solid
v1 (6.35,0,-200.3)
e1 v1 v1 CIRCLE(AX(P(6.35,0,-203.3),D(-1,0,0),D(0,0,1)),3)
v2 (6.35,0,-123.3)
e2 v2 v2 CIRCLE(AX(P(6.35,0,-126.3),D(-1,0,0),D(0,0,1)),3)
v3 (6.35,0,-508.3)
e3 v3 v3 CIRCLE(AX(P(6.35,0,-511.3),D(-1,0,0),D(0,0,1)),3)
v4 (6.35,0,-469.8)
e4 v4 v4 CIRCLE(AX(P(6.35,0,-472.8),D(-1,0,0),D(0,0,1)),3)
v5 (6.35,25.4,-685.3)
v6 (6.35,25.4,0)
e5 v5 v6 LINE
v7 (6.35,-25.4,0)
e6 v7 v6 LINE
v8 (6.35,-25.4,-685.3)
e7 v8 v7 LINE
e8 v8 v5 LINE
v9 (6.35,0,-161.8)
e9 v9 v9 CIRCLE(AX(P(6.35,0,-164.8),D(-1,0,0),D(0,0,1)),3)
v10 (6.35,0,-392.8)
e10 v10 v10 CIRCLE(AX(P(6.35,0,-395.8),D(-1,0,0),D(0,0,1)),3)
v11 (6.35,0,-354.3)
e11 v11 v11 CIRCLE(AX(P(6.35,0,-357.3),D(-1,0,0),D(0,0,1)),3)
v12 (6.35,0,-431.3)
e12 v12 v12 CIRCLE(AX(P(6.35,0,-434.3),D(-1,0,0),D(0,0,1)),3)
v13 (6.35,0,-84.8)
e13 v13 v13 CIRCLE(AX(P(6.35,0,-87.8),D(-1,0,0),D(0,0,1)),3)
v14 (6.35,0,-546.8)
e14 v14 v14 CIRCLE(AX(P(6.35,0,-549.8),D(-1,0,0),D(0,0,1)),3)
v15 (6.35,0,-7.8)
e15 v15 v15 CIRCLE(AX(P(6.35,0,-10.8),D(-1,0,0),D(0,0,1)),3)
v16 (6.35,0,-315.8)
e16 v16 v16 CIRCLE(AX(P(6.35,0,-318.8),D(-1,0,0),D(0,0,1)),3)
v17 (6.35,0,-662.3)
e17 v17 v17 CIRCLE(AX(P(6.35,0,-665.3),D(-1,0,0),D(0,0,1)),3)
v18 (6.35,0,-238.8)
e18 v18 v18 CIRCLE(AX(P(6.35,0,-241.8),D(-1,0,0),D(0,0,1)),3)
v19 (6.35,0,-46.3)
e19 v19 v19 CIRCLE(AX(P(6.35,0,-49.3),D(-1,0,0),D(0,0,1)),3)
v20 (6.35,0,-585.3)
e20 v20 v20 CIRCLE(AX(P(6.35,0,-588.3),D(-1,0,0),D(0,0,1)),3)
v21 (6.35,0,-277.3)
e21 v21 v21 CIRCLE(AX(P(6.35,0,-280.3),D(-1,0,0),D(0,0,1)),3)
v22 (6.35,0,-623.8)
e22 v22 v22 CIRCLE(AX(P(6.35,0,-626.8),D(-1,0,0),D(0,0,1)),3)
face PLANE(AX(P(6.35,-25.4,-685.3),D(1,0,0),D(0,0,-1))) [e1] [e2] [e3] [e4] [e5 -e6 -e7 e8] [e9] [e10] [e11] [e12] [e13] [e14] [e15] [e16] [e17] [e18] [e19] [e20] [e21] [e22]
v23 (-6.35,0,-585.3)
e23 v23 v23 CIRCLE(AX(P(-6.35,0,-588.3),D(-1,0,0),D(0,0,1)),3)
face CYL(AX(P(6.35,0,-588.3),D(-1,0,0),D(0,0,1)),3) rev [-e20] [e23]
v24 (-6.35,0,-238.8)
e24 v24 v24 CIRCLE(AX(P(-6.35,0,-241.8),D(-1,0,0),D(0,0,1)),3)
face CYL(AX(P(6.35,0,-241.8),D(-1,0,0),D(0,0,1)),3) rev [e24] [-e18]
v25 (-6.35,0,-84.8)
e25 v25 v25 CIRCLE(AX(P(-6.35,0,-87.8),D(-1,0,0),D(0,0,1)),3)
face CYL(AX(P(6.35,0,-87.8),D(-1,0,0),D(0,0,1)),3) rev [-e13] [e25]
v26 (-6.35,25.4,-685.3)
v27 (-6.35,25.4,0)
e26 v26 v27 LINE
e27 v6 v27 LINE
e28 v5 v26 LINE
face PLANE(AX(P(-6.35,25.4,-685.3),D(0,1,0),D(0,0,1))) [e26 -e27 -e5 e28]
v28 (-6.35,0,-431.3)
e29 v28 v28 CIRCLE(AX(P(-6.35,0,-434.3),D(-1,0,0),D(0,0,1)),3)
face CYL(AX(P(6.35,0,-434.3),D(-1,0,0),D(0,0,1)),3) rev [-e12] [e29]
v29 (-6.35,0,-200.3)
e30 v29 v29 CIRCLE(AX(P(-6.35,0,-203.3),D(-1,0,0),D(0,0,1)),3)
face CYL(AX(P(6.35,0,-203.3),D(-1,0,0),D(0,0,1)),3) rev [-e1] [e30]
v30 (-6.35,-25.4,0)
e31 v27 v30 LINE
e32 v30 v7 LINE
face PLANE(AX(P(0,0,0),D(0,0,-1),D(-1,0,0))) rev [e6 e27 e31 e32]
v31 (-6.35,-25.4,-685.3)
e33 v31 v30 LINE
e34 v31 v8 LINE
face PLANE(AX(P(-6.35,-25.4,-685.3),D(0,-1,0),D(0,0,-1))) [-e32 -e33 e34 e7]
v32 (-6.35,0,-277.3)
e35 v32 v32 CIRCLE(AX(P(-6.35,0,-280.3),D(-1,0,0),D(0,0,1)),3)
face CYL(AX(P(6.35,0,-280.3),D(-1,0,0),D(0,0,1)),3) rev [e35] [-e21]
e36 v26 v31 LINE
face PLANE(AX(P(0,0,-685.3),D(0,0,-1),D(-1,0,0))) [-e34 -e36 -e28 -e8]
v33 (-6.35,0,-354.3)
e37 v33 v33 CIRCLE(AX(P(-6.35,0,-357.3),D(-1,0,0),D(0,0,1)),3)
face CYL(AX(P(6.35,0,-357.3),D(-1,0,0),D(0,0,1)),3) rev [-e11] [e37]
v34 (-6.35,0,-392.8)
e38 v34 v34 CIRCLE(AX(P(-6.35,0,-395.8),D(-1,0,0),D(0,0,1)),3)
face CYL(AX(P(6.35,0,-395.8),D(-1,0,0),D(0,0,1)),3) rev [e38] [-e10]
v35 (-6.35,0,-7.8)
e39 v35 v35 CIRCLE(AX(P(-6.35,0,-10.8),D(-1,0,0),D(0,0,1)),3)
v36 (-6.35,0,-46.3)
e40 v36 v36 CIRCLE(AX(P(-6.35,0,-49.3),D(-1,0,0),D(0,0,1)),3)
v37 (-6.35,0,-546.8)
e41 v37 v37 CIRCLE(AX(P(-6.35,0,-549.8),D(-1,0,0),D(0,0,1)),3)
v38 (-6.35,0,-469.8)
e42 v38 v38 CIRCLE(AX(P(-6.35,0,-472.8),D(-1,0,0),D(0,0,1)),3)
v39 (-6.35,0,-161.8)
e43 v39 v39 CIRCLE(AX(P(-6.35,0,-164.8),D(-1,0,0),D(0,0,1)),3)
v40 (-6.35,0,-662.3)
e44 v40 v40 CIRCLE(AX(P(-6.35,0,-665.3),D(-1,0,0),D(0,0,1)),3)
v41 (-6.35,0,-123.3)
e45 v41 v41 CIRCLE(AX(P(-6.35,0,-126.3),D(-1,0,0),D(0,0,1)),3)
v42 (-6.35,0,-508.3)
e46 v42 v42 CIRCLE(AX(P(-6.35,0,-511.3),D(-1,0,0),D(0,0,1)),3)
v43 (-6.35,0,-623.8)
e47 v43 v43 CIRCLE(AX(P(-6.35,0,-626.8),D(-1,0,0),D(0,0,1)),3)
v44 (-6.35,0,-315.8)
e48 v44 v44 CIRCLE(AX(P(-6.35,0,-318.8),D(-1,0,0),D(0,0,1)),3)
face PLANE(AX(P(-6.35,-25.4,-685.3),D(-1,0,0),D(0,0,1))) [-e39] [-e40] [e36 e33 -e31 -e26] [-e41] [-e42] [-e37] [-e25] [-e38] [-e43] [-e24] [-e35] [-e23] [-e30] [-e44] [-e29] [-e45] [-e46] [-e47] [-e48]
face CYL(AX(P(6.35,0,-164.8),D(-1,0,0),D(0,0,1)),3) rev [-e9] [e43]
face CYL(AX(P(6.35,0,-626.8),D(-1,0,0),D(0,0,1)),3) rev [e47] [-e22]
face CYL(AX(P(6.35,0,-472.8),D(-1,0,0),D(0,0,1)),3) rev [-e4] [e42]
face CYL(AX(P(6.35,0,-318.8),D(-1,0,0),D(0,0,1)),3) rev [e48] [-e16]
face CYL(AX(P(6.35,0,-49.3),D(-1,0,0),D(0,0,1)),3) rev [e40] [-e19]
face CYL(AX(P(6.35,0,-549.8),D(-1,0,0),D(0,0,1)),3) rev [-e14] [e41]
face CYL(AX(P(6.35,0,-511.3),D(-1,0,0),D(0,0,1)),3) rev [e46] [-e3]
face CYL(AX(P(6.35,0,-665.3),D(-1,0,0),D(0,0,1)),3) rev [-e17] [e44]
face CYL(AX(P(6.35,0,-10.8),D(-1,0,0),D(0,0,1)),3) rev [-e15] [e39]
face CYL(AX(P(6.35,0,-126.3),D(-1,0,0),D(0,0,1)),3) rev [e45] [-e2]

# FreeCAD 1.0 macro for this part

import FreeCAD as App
import Part
import Sketcher
from FreeCAD import Vector

doc = App.newDocument("Part")
body = doc.addObject("PartDesign::Body", "Body")

sketch1 = doc.addObject("Sketcher::SketchObject", "Sketch")
body.addObject(sketch1)
sketch1.AttachmentSupport = (doc.XY_Plane, [""])
sketch1.MapMode = "FlatFace"
sketch1.addGeometry([
    Part.LineSegment(Vector(-6, 25, 0), Vector(-6, -25, 0)),
    Part.LineSegment(Vector(-6, -25, 0), Vector(6, -25, 0)),
    Part.LineSegment(Vector(6, -25, 0), Vector(6, 25, 0)),
    Part.LineSegment(Vector(6, 25, 0), Vector(-6, 25, 0)),
], False)
sketch1.addConstraint([
    Sketcher.Constraint("Coincident", 0, 2, 1, 1),
    Sketcher.Constraint("Coincident", 1, 2, 2, 1),
    Sketcher.Constraint("Coincident", 2, 2, 3, 1),
    Sketcher.Constraint("Coincident", 3, 2, 0, 1),
    Sketcher.Constraint("Vertical", 0),
    Sketcher.Constraint("Horizontal", 1),
    Sketcher.Constraint("Vertical", 2),
    Sketcher.Constraint("Horizontal", 3),
    Sketcher.Constraint("Symmetric", 0, 2, 2, 2, -1, 1),
    Sketcher.Constraint("DistanceX", 1, 1, 1, 2, 12.7),
    Sketcher.Constraint("DistanceY", 0, 2, 0, 1, 50.8),
])
pad1 = doc.addObject("PartDesign::Pad", "Pad")
body.addObject(pad1)
pad1.Profile = sketch1
pad1.Length = 685.3
pad1.Reversed = True

sketch2 = doc.addObject("Sketcher::SketchObject", "Sketch001")
body.addObject(sketch2)
sketch2.AttachmentSupport = (doc.YZ_Plane, [""])
sketch2.MapMode = "FlatFace"
sketch2.AttachmentOffset = App.Placement(Vector(0, 0, -6.35), App.Rotation())
sketch2.addGeometry([
    Part.Circle(Vector(0, -665.3, 0), Vector(0, 0, 1), 3),
    Part.Circle(Vector(0, -626.8, 0), Vector(0, 0, 1), 3),
    Part.Circle(Vector(0, -588.3, 0), Vector(0, 0, 1), 3),
    Part.Circle(Vector(0, -549.8, 0), Vector(0, 0, 1), 3),
    Part.Circle(Vector(0, -511.3, 0), Vector(0, 0, 1), 3),
    Part.Circle(Vector(0, -472.8, 0), Vector(0, 0, 1), 3),
    Part.Circle(Vector(0, -434.3, 0), Vector(0, 0, 1), 3),
    Part.Circle(Vector(0, -395.8, 0), Vector(0, 0, 1), 3),
    Part.Circle(Vector(0, -357.3, 0), Vector(0, 0, 1), 3),
    Part.Circle(Vector(0, -318.8, 0), Vector(0, 0, 1), 3),
    Part.Circle(Vector(0, -280.3, 0), Vector(0, 0, 1), 3),
    Part.Circle(Vector(0, -241.8, 0), Vector(0, 0, 1), 3),
    Part.Circle(Vector(0, -203.3, 0), Vector(0, 0, 1), 3),
    Part.Circle(Vector(0, -164.8, 0), Vector(0, 0, 1), 3),
    Part.Circle(Vector(0, -126.3, 0), Vector(0, 0, 1), 3),
    Part.Circle(Vector(0, -87.8, 0), Vector(0, 0, 1), 3),
    Part.Circle(Vector(0, -49.3, 0), Vector(0, 0, 1), 3),
    Part.Circle(Vector(0, -10.8, 0), Vector(0, 0, 1), 3),
], False)
sketch2.addConstraint([
    Sketcher.Constraint("Equal", 0, 1),
    Sketcher.Constraint("Equal", 1, 2),
    Sketcher.Constraint("Equal", 2, 3),
    Sketcher.Constraint("Equal", 3, 4),
    Sketcher.Constraint("Equal", 4, 5),
    Sketcher.Constraint("Equal", 5, 6),
    Sketcher.Constraint("Equal", 6, 7),
    Sketcher.Constraint("Equal", 7, 8),
    Sketcher.Constraint("Equal", 8, 9),
    Sketcher.Constraint("Equal", 9, 10),
    Sketcher.Constraint("Equal", 10, 11),
    Sketcher.Constraint("Equal", 11, 12),
    Sketcher.Constraint("Equal", 12, 13),
    Sketcher.Constraint("Equal", 13, 14),
    Sketcher.Constraint("Equal", 14, 15),
    Sketcher.Constraint("Equal", 15, 16),
    Sketcher.Constraint("Equal", 16, 17),
    Sketcher.Constraint("PointOnObject", 0, 3, -2),
    Sketcher.Constraint("PointOnObject", 1, 3, -2),
    Sketcher.Constraint("PointOnObject", 2, 3, -2),
    Sketcher.Constraint("PointOnObject", 3, 3, -2),
    Sketcher.Constraint("PointOnObject", 4, 3, -2),
    Sketcher.Constraint("PointOnObject", 5, 3, -2),
    Sketcher.Constraint("PointOnObject", 6, 3, -2),
    Sketcher.Constraint("PointOnObject", 7, 3, -2),
    Sketcher.Constraint("PointOnObject", 8, 3, -2),
    Sketcher.Constraint("PointOnObject", 9, 3, -2),
    Sketcher.Constraint("PointOnObject", 10, 3, -2),
    Sketcher.Constraint("PointOnObject", 11, 3, -2),
    Sketcher.Constraint("PointOnObject", 12, 3, -2),
    Sketcher.Constraint("PointOnObject", 13, 3, -2),
    Sketcher.Constraint("PointOnObject", 14, 3, -2),
    Sketcher.Constraint("PointOnObject", 15, 3, -2),
    Sketcher.Constraint("PointOnObject", 16, 3, -2),
    Sketcher.Constraint("PointOnObject", 17, 3, -2),
    Sketcher.Constraint("Diameter", 0, 6.0),
    Sketcher.Constraint("DistanceY", 0, 3, 2, 3, 77.0),
    Sketcher.Constraint("DistanceY", 1, 3, 3, 3, 77.0),
    Sketcher.Constraint("DistanceY", 2, 3, 4, 3, 77.0),
    Sketcher.Constraint("DistanceY", 3, 3, 5, 3, 77.0),
    Sketcher.Constraint("DistanceY", 4, 3, 6, 3, 77.0),
    Sketcher.Constraint("DistanceY", 5, 3, 7, 3, 77.0),
    Sketcher.Constraint("DistanceY", 6, 3, 8, 3, 77.0),
    Sketcher.Constraint("DistanceY", 7, 3, 9, 3, 77.0),
    Sketcher.Constraint("DistanceY", 8, 3, 10, 3, 77.0),
    Sketcher.Constraint("DistanceY", 9, 3, 11, 3, 77.0),
    Sketcher.Constraint("DistanceY", 10, 3, 12, 3, 77.0),
    Sketcher.Constraint("DistanceY", 11, 3, 13, 3, 77.0),
    Sketcher.Constraint("DistanceY", 12, 3, 14, 3, 77.0),
    Sketcher.Constraint("DistanceY", 13, 3, 15, 3, 77.0),
    Sketcher.Constraint("DistanceY", 14, 3, 16, 3, 77.0),
    Sketcher.Constraint("DistanceY", 15, 3, 17, 3, 77.0),
    Sketcher.Constraint("DistanceY", 0, 3, -1, 1, 665.3),
    Sketcher.Constraint("DistanceY", 1, 3, -1, 1, 626.8),
])
pocket1 = doc.addObject("PartDesign::Pocket", "Pocket")
body.addObject(pocket1)
pocket1.Profile = sketch2
pocket1.Type = "ThroughAll"
pocket1.Reversed = True

doc.recompute()
